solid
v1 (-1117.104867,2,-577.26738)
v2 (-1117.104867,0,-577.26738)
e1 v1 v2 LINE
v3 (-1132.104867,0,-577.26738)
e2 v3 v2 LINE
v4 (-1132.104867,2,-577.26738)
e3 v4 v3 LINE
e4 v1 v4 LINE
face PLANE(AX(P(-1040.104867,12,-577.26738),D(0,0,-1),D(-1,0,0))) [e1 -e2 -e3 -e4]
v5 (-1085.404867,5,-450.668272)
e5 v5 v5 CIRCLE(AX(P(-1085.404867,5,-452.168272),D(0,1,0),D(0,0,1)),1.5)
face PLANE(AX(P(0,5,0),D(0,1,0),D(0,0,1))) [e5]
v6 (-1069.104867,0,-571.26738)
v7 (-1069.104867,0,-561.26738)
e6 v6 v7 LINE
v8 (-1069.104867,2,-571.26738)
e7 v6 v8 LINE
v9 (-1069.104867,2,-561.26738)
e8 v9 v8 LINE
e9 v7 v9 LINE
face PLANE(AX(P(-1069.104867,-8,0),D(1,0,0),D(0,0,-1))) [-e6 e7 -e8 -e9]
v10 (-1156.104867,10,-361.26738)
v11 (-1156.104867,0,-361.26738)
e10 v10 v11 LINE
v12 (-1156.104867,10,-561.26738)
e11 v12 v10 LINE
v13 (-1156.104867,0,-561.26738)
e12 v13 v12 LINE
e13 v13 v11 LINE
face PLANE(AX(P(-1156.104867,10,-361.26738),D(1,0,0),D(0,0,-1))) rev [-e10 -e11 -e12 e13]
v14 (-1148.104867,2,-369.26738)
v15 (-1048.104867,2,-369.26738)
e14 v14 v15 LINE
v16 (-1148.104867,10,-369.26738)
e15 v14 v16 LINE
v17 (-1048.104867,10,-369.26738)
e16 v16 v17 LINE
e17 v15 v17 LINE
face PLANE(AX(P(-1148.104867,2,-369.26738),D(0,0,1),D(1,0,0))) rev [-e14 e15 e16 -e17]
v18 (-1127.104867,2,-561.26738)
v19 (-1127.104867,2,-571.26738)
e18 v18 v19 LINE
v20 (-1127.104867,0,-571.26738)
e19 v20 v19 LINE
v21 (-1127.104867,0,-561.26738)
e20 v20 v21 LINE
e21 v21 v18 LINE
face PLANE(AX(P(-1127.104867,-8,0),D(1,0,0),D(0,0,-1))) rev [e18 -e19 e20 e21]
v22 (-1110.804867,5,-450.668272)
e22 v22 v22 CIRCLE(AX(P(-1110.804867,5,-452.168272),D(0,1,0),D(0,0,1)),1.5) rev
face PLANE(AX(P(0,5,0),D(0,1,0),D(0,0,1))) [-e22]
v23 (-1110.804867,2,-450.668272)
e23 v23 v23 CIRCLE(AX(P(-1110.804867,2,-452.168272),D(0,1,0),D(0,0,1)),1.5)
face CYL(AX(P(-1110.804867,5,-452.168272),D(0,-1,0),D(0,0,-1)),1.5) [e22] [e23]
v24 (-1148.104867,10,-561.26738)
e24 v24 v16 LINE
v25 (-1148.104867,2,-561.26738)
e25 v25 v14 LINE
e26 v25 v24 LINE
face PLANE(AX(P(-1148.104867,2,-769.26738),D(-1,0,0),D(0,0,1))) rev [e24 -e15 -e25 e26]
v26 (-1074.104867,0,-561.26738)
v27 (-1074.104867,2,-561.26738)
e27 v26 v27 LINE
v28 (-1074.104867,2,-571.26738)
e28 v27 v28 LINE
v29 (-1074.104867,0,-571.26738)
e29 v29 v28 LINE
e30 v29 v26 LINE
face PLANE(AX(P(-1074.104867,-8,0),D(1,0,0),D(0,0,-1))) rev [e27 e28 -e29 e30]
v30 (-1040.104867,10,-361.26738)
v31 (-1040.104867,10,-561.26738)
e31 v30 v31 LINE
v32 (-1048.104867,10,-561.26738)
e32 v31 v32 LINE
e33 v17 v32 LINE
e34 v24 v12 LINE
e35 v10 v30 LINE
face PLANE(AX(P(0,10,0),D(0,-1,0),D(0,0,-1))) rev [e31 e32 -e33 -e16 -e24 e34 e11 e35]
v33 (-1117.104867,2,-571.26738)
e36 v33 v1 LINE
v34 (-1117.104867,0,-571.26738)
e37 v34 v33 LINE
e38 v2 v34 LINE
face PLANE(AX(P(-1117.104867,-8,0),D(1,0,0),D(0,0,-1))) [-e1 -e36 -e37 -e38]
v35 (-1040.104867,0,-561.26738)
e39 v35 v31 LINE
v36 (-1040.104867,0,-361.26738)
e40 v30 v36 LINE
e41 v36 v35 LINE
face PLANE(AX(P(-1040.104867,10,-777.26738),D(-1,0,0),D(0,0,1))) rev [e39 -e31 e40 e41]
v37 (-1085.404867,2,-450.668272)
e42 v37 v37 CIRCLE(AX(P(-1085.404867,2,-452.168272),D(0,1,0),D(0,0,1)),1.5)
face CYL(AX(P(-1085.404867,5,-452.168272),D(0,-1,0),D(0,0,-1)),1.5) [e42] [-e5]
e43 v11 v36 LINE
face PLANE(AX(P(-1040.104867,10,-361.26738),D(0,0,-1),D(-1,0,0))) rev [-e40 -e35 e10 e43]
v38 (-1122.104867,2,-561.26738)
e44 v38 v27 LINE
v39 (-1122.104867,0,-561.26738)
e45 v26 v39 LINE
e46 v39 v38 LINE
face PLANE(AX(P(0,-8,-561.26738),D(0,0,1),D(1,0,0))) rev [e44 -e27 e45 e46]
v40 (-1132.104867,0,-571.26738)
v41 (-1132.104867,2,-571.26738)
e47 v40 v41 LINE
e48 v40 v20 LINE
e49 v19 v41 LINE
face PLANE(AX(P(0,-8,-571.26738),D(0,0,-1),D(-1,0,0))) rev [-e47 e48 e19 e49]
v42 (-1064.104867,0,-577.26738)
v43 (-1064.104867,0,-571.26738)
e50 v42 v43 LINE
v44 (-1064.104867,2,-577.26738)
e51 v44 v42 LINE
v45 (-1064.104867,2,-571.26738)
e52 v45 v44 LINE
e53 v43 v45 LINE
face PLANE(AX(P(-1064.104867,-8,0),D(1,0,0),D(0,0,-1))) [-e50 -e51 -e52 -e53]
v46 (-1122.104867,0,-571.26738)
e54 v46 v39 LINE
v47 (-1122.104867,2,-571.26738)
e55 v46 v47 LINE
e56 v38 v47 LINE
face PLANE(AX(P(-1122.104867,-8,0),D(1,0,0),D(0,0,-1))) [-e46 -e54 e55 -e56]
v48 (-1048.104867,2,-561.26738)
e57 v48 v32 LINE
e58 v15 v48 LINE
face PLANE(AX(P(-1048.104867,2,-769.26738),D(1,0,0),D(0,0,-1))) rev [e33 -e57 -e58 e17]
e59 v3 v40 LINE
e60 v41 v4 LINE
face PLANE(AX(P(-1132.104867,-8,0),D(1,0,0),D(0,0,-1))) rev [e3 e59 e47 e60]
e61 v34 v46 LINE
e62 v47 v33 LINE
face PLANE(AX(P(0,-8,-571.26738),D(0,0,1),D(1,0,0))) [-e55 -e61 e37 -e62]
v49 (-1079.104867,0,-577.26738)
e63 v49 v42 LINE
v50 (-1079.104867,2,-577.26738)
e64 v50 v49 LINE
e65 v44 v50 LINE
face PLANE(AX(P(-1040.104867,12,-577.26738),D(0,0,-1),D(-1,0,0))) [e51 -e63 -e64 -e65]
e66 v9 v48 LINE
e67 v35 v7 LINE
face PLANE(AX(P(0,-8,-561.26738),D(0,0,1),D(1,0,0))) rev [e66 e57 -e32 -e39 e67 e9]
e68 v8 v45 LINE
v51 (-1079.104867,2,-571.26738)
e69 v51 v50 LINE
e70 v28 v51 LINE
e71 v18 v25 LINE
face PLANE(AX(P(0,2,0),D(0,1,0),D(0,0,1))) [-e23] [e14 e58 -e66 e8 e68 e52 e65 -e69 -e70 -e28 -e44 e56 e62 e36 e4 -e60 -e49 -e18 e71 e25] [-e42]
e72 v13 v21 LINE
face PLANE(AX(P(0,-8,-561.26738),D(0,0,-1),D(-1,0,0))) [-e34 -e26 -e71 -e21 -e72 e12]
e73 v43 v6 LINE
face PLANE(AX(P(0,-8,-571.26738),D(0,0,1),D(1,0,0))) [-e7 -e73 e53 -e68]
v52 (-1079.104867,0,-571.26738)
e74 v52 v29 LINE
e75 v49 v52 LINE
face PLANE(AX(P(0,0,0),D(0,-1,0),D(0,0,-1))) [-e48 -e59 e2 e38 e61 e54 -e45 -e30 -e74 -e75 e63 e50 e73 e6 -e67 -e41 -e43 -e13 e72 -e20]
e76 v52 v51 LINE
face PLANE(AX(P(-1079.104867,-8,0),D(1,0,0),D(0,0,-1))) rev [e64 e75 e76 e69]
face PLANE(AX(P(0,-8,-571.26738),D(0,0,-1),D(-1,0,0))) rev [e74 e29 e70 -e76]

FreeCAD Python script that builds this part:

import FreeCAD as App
import Part
import Sketcher

V = App.Vector


def add_polygon(sketch, points):
    """Adds a closed chain of lines whose ends are joined by coincident constraints."""
    first, n = sketch.GeometryCount, len(points)
    for a, b in zip(points, points[1:] + points[:1]):
        sketch.addGeometry(Part.LineSegment(App.Vector(*a, 0), App.Vector(*b, 0)), False)
    for i in range(n):
        sketch.addConstraint(Sketcher.Constraint("Coincident", first + i, 2, first + (i + 1) % n, 1))

doc = App.newDocument("Part")
params = doc.addObject("Spreadsheet::Sheet", "Params")
for row, (alias, value) in enumerate([
    ("sketch1_width", "116 mm"),
    ("sketch1_height", "416 mm"),
    ("pad1_length", "10 mm"),
    ("sketch2_width", "100 mm"),
    ("sketch2_height", "400 mm"),
    ("pocket1_length", "8 mm"),
    ("sketch3_width", "3 mm"),
    ("sketch3_height", "100 mm"),
    ("pad2_length", "3 mm"),
    ("sketch4_diameter", "3 mm"),
    ("pad3_length", "3 mm"),
    ("sketch5_width", "116 mm"),
    ("sketch5_height", "200 mm"),
    ("sketch6_width", "29 mm"),
    ("sketch6_width2", "5 mm"),
    ("sketch6_width3", "38 mm"),
    ("sketch6_width4", "21 mm"),
    ("sketch6_height", "10 mm"),
    ("pocket3_length", "10 mm"),
    ("sketch7_width", "8 mm"),
    ("sketch7_height", "16 mm"),
    ("pocket4_length", "10 mm"),
    ("sketch8_diameter", "3 mm"),
    ("pad4_length", "3 mm"),
], start=1):
    params.set(f"A{row}", alias)
    params.set(f"B{row}", "=" + value)
    params.setAlias(f"B{row}", alias)

body = doc.addObject("PartDesign::Body", "Body")

# Sketch on XZ plane
sketch1 = body.newObject("Sketcher::SketchObject", "Sketch")
sketch1.AttachmentSupport = (doc.getObject("XZ_Plane"), [""])
sketch1.MapMode = "FlatFace"
add_polygon(sketch1, [(-1156.104867, -777.26738), (-1156.104867, -361.26738), (-1040.104867, -361.26738), (-1040.104867, -777.26738)])  # lines 0-3
sketch1.addConstraint([
    Sketcher.Constraint("Vertical", 0),
    Sketcher.Constraint("Horizontal", 1),
    Sketcher.Constraint("Vertical", 2),
    Sketcher.Constraint("Horizontal", 3),
    Sketcher.Constraint("DistanceX", 1, 1, 1, 2, 116.0),
    Sketcher.Constraint("DistanceY", 0, 1, 0, 2, 416.0),
    Sketcher.Constraint("DistanceY", 0, 2, -1, 1, 361.26738),
    Sketcher.Constraint("DistanceX", 0, 2, -1, 1, 1156.104867),
])
sketch1.setExpression("Constraints[8]", "Params.sketch1_width")
sketch1.setExpression("Constraints[9]", "Params.sketch1_height")
pad1 = body.newObject("PartDesign::Pad", "Pad")
pad1.Profile = sketch1
pad1.setExpression("Length", "Params.pad1_length")
pad1.Reversed = True

# Sketch on XZ plane
sketch2 = body.newObject("Sketcher::SketchObject", "Sketch001")
sketch2.AttachmentSupport = (doc.getObject("XZ_Plane"), [""])
sketch2.MapMode = "FlatFace"
sketch2.AttachmentOffset = App.Placement(V(0, 0, -10), App.Rotation())
add_polygon(sketch2, [(-1148.104867, -769.26738), (-1148.104867, -369.26738), (-1048.104867, -369.26738), (-1048.104867, -769.26738)])  # lines 0-3
sketch2.addConstraint([
    Sketcher.Constraint("Vertical", 0),
    Sketcher.Constraint("Horizontal", 1),
    Sketcher.Constraint("Vertical", 2),
    Sketcher.Constraint("Horizontal", 3),
    Sketcher.Constraint("DistanceX", 1, 1, 1, 2, 100.0),
    Sketcher.Constraint("DistanceY", 0, 1, 0, 2, 400.0),
    Sketcher.Constraint("DistanceY", 0, 2, -1, 1, 369.26738),
    Sketcher.Constraint("DistanceX", 0, 2, -1, 1, 1148.104867),
])
sketch2.setExpression("Constraints[8]", "Params.sketch2_width")
sketch2.setExpression("Constraints[9]", "Params.sketch2_height")
pocket1 = body.newObject("PartDesign::Pocket", "Pocket")
pocket1.Profile = sketch2
pocket1.setExpression("Length", "Params.pocket1_length")
pocket1.Reversed = True

# Sketch on XZ plane
sketch3 = body.newObject("Sketcher::SketchObject", "Sketch002")
sketch3.AttachmentSupport = (doc.getObject("XZ_Plane"), [""])
sketch3.MapMode = "FlatFace"
sketch3.AttachmentOffset = App.Placement(V(0, 0, -2), App.Rotation())
add_polygon(sketch3, [(-1131.104867, -769.26738), (-1131.104867, -669.26738), (-1128.104867, -669.26738), (-1128.104867, -769.26738)])  # lines 0-3
add_polygon(sketch3, [(-1068.104867, -769.26738), (-1068.104867, -669.26738), (-1065.104867, -669.26738), (-1065.104867, -769.26738)])  # lines 4-7
sketch3.addConstraint([
    Sketcher.Constraint("Vertical", 0),
    Sketcher.Constraint("Horizontal", 1),
    Sketcher.Constraint("Vertical", 2),
    Sketcher.Constraint("Horizontal", 3),
    Sketcher.Constraint("Vertical", 4),
    Sketcher.Constraint("Horizontal", 5),
    Sketcher.Constraint("Vertical", 6),
    Sketcher.Constraint("Horizontal", 7),
    Sketcher.Constraint("Horizontal", 1, 2, 4, 2),
    Sketcher.Constraint("Horizontal", 3, 2, 6, 2),
    Sketcher.Constraint("Equal", 3, 5),
    Sketcher.Constraint("DistanceX", 1, 1, 1, 2, 3.0),
    Sketcher.Constraint("DistanceY", 0, 1, 0, 2, 100.0),
    Sketcher.Constraint("DistanceX", 1, 2, 4, 2, 60.0),
    Sketcher.Constraint("DistanceY", 0, 2, -1, 1, 669.26738),
    Sketcher.Constraint("DistanceX", 0, 2, -1, 1, 1131.104867),
])
sketch3.setExpression("Constraints[19]", "Params.sketch3_width")
sketch3.setExpression("Constraints[20]", "Params.sketch3_height")
pad2 = body.newObject("PartDesign::Pad", "Pad001")
pad2.Profile = sketch3
pad2.setExpression("Length", "Params.pad2_length")
pad2.Reversed = True

# Sketch on XZ plane
sketch4 = body.newObject("Sketcher::SketchObject", "Sketch003")
sketch4.AttachmentSupport = (doc.getObject("XZ_Plane"), [""])
sketch4.MapMode = "FlatFace"
sketch4.AttachmentOffset = App.Placement(V(0, 0, -2), App.Rotation())
sketch4.addGeometry(Part.Circle(V(-1085.404867, -452.168272, 0), V(0, 0, 1), 1.5), False)
sketch4.addConstraint([
    Sketcher.Constraint("Diameter", 0, 3.0),
    Sketcher.Constraint("DistanceY", 0, 3, -1, 1, 452.168272),
    Sketcher.Constraint("DistanceX", 0, 3, -1, 1, 1085.404867),
])
sketch4.setExpression("Constraints[0]", "Params.sketch4_diameter")
pad3 = body.newObject("PartDesign::Pad", "Pad002")
pad3.Profile = sketch4
pad3.setExpression("Length", "Params.pad3_length")
pad3.Reversed = True

# Sketch on XZ plane
sketch5 = body.newObject("Sketcher::SketchObject", "Sketch004")
sketch5.AttachmentSupport = (doc.getObject("XZ_Plane"), [""])
sketch5.MapMode = "FlatFace"
sketch5.AttachmentOffset = App.Placement(V(0, 0, -2), App.Rotation())
add_polygon(sketch5, [(-1156.104867, -777.26738), (-1156.104867, -577.26738), (-1040.104867, -577.26738), (-1040.104867, -777.26738)])  # lines 0-3
sketch5.addConstraint([
    Sketcher.Constraint("Vertical", 0),
    Sketcher.Constraint("Horizontal", 1),
    Sketcher.Constraint("Vertical", 2),
    Sketcher.Constraint("Horizontal", 3),
    Sketcher.Constraint("DistanceX", 1, 1, 1, 2, 116.0),
    Sketcher.Constraint("DistanceY", 0, 1, 0, 2, 200.0),
    Sketcher.Constraint("DistanceY", 0, 2, -1, 1, 577.26738),
    Sketcher.Constraint("DistanceX", 0, 2, -1, 1, 1156.104867),
])
sketch5.setExpression("Constraints[8]", "Params.sketch5_width")
sketch5.setExpression("Constraints[9]", "Params.sketch5_height")
pocket2 = body.newObject("PartDesign::Pocket", "Pocket001")
pocket2.Profile = sketch5
pocket2.Type = "ThroughAll"
pocket2.Midplane = True

# Sketch on XZ plane
sketch6 = body.newObject("Sketcher::SketchObject", "Sketch005")
sketch6.AttachmentSupport = (doc.getObject("XZ_Plane"), [""])
sketch6.MapMode = "FlatFace"
sketch6.AttachmentOffset = App.Placement(V(0, 0, -2), App.Rotation())
add_polygon(sketch6, [(-1156.104867, -577.26738), (-1156.104867, -561.26738), (-1127.104867, -561.26738), (-1127.104867, -571.26738), (-1132.104867, -571.26738), (-1132.104867, -577.26738)])  # lines 0-5
add_polygon(sketch6, [(-1079.104867, -577.26738), (-1117.104867, -577.26738), (-1117.104867, -571.26738), (-1122.104867, -571.26738), (-1122.104867, -561.26738), (-1074.104867, -561.26738), (-1074.104867, -571.26738), (-1079.104867, -571.26738)])  # lines 6-13
add_polygon(sketch6, [(-1069.104867, -561.26738), (-1048.104867, -561.26738), (-1048.104867, -577.26738), (-1064.104867, -577.26738), (-1064.104867, -571.26738), (-1069.104867, -571.26738)])  # lines 14-19
sketch6.addConstraint([
    Sketcher.Constraint("Vertical", 0),
    Sketcher.Constraint("Horizontal", 1),
    Sketcher.Constraint("Vertical", 2),
    Sketcher.Constraint("Horizontal", 3),
    Sketcher.Constraint("Vertical", 4),
    Sketcher.Constraint("Horizontal", 5),
    Sketcher.Constraint("Horizontal", 6),
    Sketcher.Constraint("Vertical", 7),
    Sketcher.Constraint("Horizontal", 8),
    Sketcher.Constraint("Vertical", 9),
    Sketcher.Constraint("Horizontal", 10),
    Sketcher.Constraint("Vertical", 11),
    Sketcher.Constraint("Horizontal", 12),
    Sketcher.Constraint("Vertical", 13),
    Sketcher.Constraint("Horizontal", 14),
    Sketcher.Constraint("Vertical", 15),
    Sketcher.Constraint("Horizontal", 16),
    Sketcher.Constraint("Vertical", 17),
    Sketcher.Constraint("Horizontal", 18),
    Sketcher.Constraint("Vertical", 19),
    Sketcher.Constraint("Horizontal", 5, 2, 6, 2),
    Sketcher.Constraint("Horizontal", 3, 2, 7, 2),
    Sketcher.Constraint("Horizontal", 1, 2, 9, 2),
    Sketcher.Constraint("Horizontal", 8, 2, 11, 2),
    Sketcher.Constraint("Horizontal", 10, 2, 14, 2),
    Sketcher.Constraint("Horizontal", 13, 2, 15, 2),
    Sketcher.Constraint("Horizontal", 12, 2, 17, 2),
    Sketcher.Constraint("Equal", 3, 8),
    Sketcher.Constraint("Equal", 8, 12),
    Sketcher.Constraint("Equal", 12, 18),
    Sketcher.Constraint("Equal", 16, 0),
    Sketcher.Constraint("DistanceX", 1, 1, 1, 2, 29.0),
    Sketcher.Constraint("DistanceX", 3, 2, 3, 1, 5.0),
    Sketcher.Constraint("DistanceX", 6, 2, 6, 1, 38.0),
    Sketcher.Constraint("DistanceX", 14, 1, 14, 2, 21.0),
    Sketcher.Constraint("DistanceY", 2, 2, 2, 1, 10.0),
    Sketcher.Constraint("DistanceX", 2, 2, 6, 2, 10.0),
    Sketcher.Constraint("DistanceX", 10, 2, 14, 2, 26.0),
    Sketcher.Constraint("DistanceY", 0, 2, -1, 1, 561.26738),
    Sketcher.Constraint("DistanceX", 0, 2, -1, 1, 1156.104867),
])
sketch6.setExpression("Constraints[51]", "Params.sketch6_width")
sketch6.setExpression("Constraints[52]", "Params.sketch6_width2")
sketch6.setExpression("Constraints[53]", "Params.sketch6_width3")
sketch6.setExpression("Constraints[54]", "Params.sketch6_width4")
sketch6.setExpression("Constraints[55]", "Params.sketch6_height")
pocket3 = body.newObject("PartDesign::Pocket", "Pocket002")
pocket3.Profile = sketch6
pocket3.setExpression("Length", "Params.pocket3_length")
pocket3.Reversed = True

# Sketch on XZ plane
sketch7 = body.newObject("Sketcher::SketchObject", "Sketch006")
sketch7.AttachmentSupport = (doc.getObject("XZ_Plane"), [""])
sketch7.MapMode = "FlatFace"
sketch7.AttachmentOffset = App.Placement(V(0, 0, -10), App.Rotation())
add_polygon(sketch7, [(-1156.104867, -577.26738), (-1156.104867, -561.26738), (-1148.104867, -561.26738), (-1148.104867, -577.26738)])  # lines 0-3
add_polygon(sketch7, [(-1048.104867, -577.26738), (-1048.104867, -561.26738), (-1040.104867, -561.26738), (-1040.104867, -577.26738)])  # lines 4-7
sketch7.addConstraint([
    Sketcher.Constraint("Vertical", 0),
    Sketcher.Constraint("Horizontal", 1),
    Sketcher.Constraint("Vertical", 2),
    Sketcher.Constraint("Horizontal", 3),
    Sketcher.Constraint("Vertical", 4),
    Sketcher.Constraint("Horizontal", 5),
    Sketcher.Constraint("Vertical", 6),
    Sketcher.Constraint("Horizontal", 7),
    Sketcher.Constraint("Horizontal", 1, 2, 4, 2),
    Sketcher.Constraint("Horizontal", 3, 2, 6, 2),
    Sketcher.Constraint("Equal", 3, 5),
    Sketcher.Constraint("DistanceX", 1, 1, 1, 2, 8.0),
    Sketcher.Constraint("DistanceY", 0, 1, 0, 2, 16.0),
    Sketcher.Constraint("DistanceX", 1, 2, 4, 2, 100.0),
    Sketcher.Constraint("DistanceY", 0, 2, -1, 1, 561.26738),
    Sketcher.Constraint("DistanceX", 0, 2, -1, 1, 1156.104867),
])
sketch7.setExpression("Constraints[19]", "Params.sketch7_width")
sketch7.setExpression("Constraints[20]", "Params.sketch7_height")
pocket4 = body.newObject("PartDesign::Pocket", "Pocket003")
pocket4.Profile = sketch7
pocket4.setExpression("Length", "Params.pocket4_length")
pocket4.Reversed = True

# Sketch on XZ plane
sketch8 = body.newObject("Sketcher::SketchObject", "Sketch007")
sketch8.AttachmentSupport = (doc.getObject("XZ_Plane"), [""])
sketch8.MapMode = "FlatFace"
sketch8.AttachmentOffset = App.Placement(V(0, 0, -2), App.Rotation())
sketch8.addGeometry(Part.Circle(V(-1110.804867, -452.168272, 0), V(0, 0, 1), 1.5), False)
sketch8.addConstraint([
    Sketcher.Constraint("Diameter", 0, 3.0),
    Sketcher.Constraint("DistanceY", 0, 3, -1, 1, 452.168272),
    Sketcher.Constraint("DistanceX", 0, 3, -1, 1, 1110.804867),
])
sketch8.setExpression("Constraints[0]", "Params.sketch8_diameter")
pad4 = body.newObject("PartDesign::Pad", "Pad003")
pad4.Profile = sketch8
pad4.setExpression("Length", "Params.pad4_length")
pad4.Reversed = True

doc.recompute()
